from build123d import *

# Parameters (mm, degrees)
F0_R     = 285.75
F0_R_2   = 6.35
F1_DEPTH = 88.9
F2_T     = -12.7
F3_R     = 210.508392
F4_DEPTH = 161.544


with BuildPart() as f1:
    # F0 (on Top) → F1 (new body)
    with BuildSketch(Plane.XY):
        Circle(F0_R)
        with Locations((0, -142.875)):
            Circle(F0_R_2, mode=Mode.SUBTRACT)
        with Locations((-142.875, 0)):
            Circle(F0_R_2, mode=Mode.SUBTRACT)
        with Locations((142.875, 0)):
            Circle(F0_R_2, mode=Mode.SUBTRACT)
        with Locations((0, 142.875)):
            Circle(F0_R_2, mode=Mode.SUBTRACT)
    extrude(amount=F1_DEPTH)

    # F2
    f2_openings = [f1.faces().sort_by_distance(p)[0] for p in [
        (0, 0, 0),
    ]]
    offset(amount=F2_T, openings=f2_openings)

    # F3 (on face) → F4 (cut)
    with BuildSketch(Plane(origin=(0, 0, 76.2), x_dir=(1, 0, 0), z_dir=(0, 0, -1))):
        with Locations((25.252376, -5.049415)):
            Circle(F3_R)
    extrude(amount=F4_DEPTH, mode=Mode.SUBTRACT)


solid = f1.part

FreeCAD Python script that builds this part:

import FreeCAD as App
import Part
import Sketcher

V = App.Vector
Q = App.Units.Quantity


def faces_at(feature, points):
    """Names of the faces that lie closest to the given points."""
    faces = feature.Shape.Faces
    near = lambda p: min(range(len(faces)), key=lambda i: faces[i].distToShape(Part.Vertex(*p))[0])
    return sorted({f"Face{near(p) + 1}" for p in points})

doc = App.newDocument("Part")
body = doc.addObject("PartDesign::Body", "Body")

# Sketch on XY plane
sketch1 = doc.addObject("Sketcher::SketchObject", "Sketch")
body.addObject(sketch1)
sketch1.AttachmentSupport = (doc.XY_Plane, [""])
sketch1.MapMode = "FlatFace"
sketch1.addGeometry([
    Part.Circle(V(0, 0, 0), V(0, 0, 1), 286),  # 0
    Part.Circle(V(0, -143, 0), V(0, 0, 1), 6),  # 1
    Part.Circle(V(-143, 0, 0), V(0, 0, 1), 6),  # 2
    Part.Circle(V(143, 0, 0), V(0, 0, 1), 6),  # 3
    Part.Circle(V(0, 143, 0), V(0, 0, 1), 6),  # 4
], False)
sketch1.addConstraint([
    Sketcher.Constraint("Coincident", 0, 3, -1, 1),
    Sketcher.Constraint("Equal", 1, 2),
    Sketcher.Constraint("Equal", 2, 3),
    Sketcher.Constraint("Equal", 3, 4),
    Sketcher.Constraint("Symmetric", 2, 3, 3, 3, -1, 1),
    Sketcher.Constraint("Symmetric", 1, 3, 4, 3, -1, 1),
    Sketcher.Constraint("PointOnObject", 1, 3, -2),
    Sketcher.Constraint("PointOnObject", 2, 3, -1),
    Sketcher.Constraint("Diameter", 0, Q("22.5 in")),
    Sketcher.Constraint("Diameter", 1, Q("0.5 in")),
    Sketcher.Constraint("DistanceX", 2, 3, 3, 3, Q("11.25 in")),
    Sketcher.Constraint("DistanceY", 1, 3, 4, 3, Q("11.25 in")),
])
pad1 = doc.addObject("PartDesign::Pad", "Pad")
body.addObject(pad1)
pad1.Profile = sketch1
pad1.Length = Q("3.5 in")
doc.recompute()

thickness = doc.addObject("PartDesign::Thickness", "Thickness")
body.addObject(thickness)
thickness.Base = (pad1, faces_at(pad1, [(0, 0, 0)]))
thickness.Value = Q("0.5 in")
thickness.Reversed = True
thickness.Join = "Arc"

# Sketch on XY plane
sketch2 = doc.addObject("Sketcher::SketchObject", "Sketch001")
body.addObject(sketch2)
sketch2.AttachmentSupport = (doc.XY_Plane, [""])
sketch2.MapMode = "FlatFace"
sketch2.AttachmentOffset = App.Placement(V(0, 0, 3 * 25.4), App.Rotation())
sketch2.addGeometry(Part.Circle(V(25, 5, 0), V(0, 0, 1), 211), False)
sketch2.addConstraint([
    Sketcher.Constraint("Diameter", 0, Q("421.016784 mm")),
    Sketcher.Constraint("DistanceX", -1, 1, 0, 3, Q("25.252376 mm")),
    Sketcher.Constraint("DistanceY", -1, 1, 0, 3, Q("5.049415 mm")),
])
pocket1 = doc.addObject("PartDesign::Pocket", "Pocket")
body.addObject(pocket1)
pocket1.Profile = sketch2
pocket1.Length = Q("6.36 in")

doc.recompute()
